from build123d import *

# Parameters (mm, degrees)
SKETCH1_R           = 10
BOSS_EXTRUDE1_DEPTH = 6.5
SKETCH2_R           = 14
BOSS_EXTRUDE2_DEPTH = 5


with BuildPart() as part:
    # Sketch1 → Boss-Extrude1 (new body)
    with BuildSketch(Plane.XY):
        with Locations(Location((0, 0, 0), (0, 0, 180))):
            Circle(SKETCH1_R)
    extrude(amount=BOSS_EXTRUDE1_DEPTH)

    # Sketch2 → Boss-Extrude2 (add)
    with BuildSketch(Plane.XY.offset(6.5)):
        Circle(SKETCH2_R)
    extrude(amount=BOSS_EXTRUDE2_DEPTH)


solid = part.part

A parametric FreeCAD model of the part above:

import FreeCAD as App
import Part
import Sketcher
from FreeCAD import Vector
Q = App.Units.Quantity

doc = App.newDocument("Part")
body = doc.addObject("PartDesign::Body", "Body")

# Sketch on XY plane
sketch1 = body.newObject("Sketcher::SketchObject", "Sketch")
sketch1.AttachmentSupport = (doc.getObject("XY_Plane"), [""])
sketch1.MapMode = "FlatFace"
sketch1.addGeometry(Part.Circle(Vector(0, 0, 0), Vector(0, 0, 1), 10), False)
sketch1.addConstraint([
    Sketcher.Constraint("Coincident", 0, 3, -1, 1),
    Sketcher.Constraint("Diameter", 0, Q("20 mm")),
])
pad1 = body.newObject("PartDesign::Pad", "Pad")
pad1.Profile = sketch1
pad1.Length = 6.5

# Sketch on XY plane
sketch2 = body.newObject("Sketcher::SketchObject", "Sketch001")
sketch2.AttachmentSupport = (doc.getObject("XY_Plane"), [""])
sketch2.MapMode = "FlatFace"
sketch2.AttachmentOffset = App.Placement(Vector(0, 0, 6.5), App.Rotation())
sketch2.addGeometry(Part.Circle(Vector(0, 0, 0), Vector(0, 0, 1), 14), False)
sketch2.addConstraint([
    Sketcher.Constraint("Coincident", 0, 3, -1, 1),
    Sketcher.Constraint("Diameter", 0, Q("28 mm")),
])
pad2 = body.newObject("PartDesign::Pad", "Pad001")
pad2.Profile = sketch2
pad2.Length = 5

doc.recompute()
